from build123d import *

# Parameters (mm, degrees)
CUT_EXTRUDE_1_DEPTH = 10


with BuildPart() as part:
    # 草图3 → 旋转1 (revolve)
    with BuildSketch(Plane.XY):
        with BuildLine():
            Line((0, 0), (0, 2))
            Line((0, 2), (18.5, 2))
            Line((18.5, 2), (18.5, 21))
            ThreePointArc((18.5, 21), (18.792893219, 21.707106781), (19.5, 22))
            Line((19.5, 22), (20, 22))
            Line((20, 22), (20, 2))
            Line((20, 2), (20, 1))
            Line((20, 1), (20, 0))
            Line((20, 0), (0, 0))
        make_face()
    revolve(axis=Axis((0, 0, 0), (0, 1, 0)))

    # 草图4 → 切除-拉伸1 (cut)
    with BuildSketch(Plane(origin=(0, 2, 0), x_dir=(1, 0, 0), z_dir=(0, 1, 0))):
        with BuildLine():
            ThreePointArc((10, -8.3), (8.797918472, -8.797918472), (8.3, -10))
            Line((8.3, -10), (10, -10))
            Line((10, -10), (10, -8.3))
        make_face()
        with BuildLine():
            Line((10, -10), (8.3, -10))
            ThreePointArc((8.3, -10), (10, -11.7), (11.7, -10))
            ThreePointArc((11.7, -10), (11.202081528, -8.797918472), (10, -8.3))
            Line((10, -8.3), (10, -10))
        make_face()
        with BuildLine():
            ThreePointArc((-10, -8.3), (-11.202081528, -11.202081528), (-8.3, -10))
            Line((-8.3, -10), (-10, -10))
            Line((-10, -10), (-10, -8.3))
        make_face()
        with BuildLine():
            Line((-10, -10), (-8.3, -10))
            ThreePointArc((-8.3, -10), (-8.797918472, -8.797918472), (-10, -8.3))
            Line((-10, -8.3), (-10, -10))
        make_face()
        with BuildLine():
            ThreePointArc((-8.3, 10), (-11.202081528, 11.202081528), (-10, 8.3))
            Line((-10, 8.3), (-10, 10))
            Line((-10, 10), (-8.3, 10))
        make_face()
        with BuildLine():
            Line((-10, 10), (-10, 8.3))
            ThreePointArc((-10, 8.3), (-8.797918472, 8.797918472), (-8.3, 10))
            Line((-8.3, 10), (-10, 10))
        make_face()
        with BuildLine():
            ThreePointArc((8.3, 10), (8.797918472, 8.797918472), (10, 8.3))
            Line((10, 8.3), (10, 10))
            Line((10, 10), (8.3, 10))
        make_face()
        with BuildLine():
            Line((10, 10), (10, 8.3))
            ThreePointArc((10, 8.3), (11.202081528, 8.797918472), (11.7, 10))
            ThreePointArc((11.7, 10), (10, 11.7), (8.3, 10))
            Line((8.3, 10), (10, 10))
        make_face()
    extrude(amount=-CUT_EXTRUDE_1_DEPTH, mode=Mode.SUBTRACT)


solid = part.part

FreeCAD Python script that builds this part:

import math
import FreeCAD as App
import Part
import Sketcher
Q = App.Units.Quantity

doc = App.newDocument("Part")
body = doc.addObject("PartDesign::Body", "Body")

sketch1 = body.newObject("Sketcher::SketchObject", "Sketch")
sketch1.AttachmentSupport = (doc.getObject("XY_Plane"), [""])
sketch1.MapMode = "FlatFace"
sketch1.addGeometry(Part.LineSegment(App.Vector(0, 2, 0), App.Vector(0, 0, 0)), False)
sketch1.addGeometry(Part.LineSegment(App.Vector(0, 0, 0), App.Vector(20, 0, 0)), False)
sketch1.addGeometry(Part.LineSegment(App.Vector(20, 0, 0), App.Vector(20, 22, 0)), False)
sketch1.addGeometry(Part.LineSegment(App.Vector(20, 22, 0), App.Vector(19.5, 22, 0)), False)
sketch1.addGeometry(Part.ArcOfCircle(Part.Circle(App.Vector(19.5, 21, 0), App.Vector(0, 0, 1), 1), math.radians(90), math.radians(180)), False)
sketch1.addGeometry(Part.LineSegment(App.Vector(18.5, 21, 0), App.Vector(18.5, 2, 0)), False)
sketch1.addGeometry(Part.LineSegment(App.Vector(18.5, 2, 0), App.Vector(0, 2, 0)), False)
sketch1.addConstraint(Sketcher.Constraint("Coincident", 0, 2, 1, 1))
sketch1.addConstraint(Sketcher.Constraint("Coincident", 1, 2, 2, 1))
sketch1.addConstraint(Sketcher.Constraint("Coincident", 2, 2, 3, 1))
sketch1.addConstraint(Sketcher.Constraint("Tangent", 3, 2, 4, 1))
sketch1.addConstraint(Sketcher.Constraint("Tangent", 4, 2, 5, 1))
sketch1.addConstraint(Sketcher.Constraint("Coincident", 5, 2, 6, 1))
sketch1.addConstraint(Sketcher.Constraint("Coincident", 6, 2, 0, 1))
sketch1.addConstraint(Sketcher.Constraint("Vertical", 0))
sketch1.addConstraint(Sketcher.Constraint("Horizontal", 1))
sketch1.addConstraint(Sketcher.Constraint("Vertical", 2))
sketch1.addConstraint(Sketcher.Constraint("Horizontal", 3))
sketch1.addConstraint(Sketcher.Constraint("Vertical", 5))
sketch1.addConstraint(Sketcher.Constraint("Horizontal", 6))
sketch1.addConstraint(Sketcher.Constraint("Coincident", 0, 2, -1, 1))
sketch1.addConstraint(Sketcher.Constraint("Radius", 4, Q("1 mm")))
sketch1.addConstraint(Sketcher.Constraint("DistanceX", 1, 1, 1, 2, Q("20 mm")))
sketch1.addConstraint(Sketcher.Constraint("DistanceY", 0, 2, 0, 1, Q("2 mm")))
sketch1.addConstraint(Sketcher.Constraint("DistanceY", 2, 1, 2, 2, Q("22 mm")))
sketch1.addConstraint(Sketcher.Constraint("DistanceX", 3, 2, 3, 1, Q("0.5 mm")))
revolution = body.newObject("PartDesign::Revolution", "Revolution")
revolution.Profile = sketch1
revolution.ReferenceAxis = (sketch1, ["V_Axis"])
revolution.Angle = 360

sketch2 = body.newObject("Sketcher::SketchObject", "Sketch001")
sketch2.AttachmentSupport = (doc.getObject("XZ_Plane"), [""])
sketch2.MapMode = "FlatFace"
sketch2.AttachmentOffset = App.Placement(App.Vector(0, 0, -2), App.Rotation())
sketch2.addGeometry(Part.ArcOfCircle(Part.Circle(App.Vector(10, 10, 0), App.Vector(0, 0, 1), 1.7), math.radians(180), math.radians(270)), False)
sketch2.addGeometry(Part.ArcOfCircle(Part.Circle(App.Vector(10, 10, 0), App.Vector(0, 0, 1), 1.7), math.radians(0), math.radians(180)), False)
sketch2.addGeometry(Part.ArcOfCircle(Part.Circle(App.Vector(10, 10, 0), App.Vector(0, 0, 1), 1.7), math.radians(-90), math.radians(0)), False)
sketch2.addGeometry(Part.ArcOfCircle(Part.Circle(App.Vector(-10, 10, 0), App.Vector(0, 0, 1), 1.7), math.radians(0), math.radians(270)), False)
sketch2.addGeometry(Part.ArcOfCircle(Part.Circle(App.Vector(-10, 10, 0), App.Vector(0, 0, 1), 1.7), math.radians(-90), math.radians(0)), False)
sketch2.addGeometry(Part.ArcOfCircle(Part.Circle(App.Vector(-10, -10, 0), App.Vector(0, 0, 1), 1.7), math.radians(90), math.radians(360)), False)
sketch2.addGeometry(Part.ArcOfCircle(Part.Circle(App.Vector(-10, -10, 0), App.Vector(0, 0, 1), 1.7), math.radians(0), math.radians(90)), False)
sketch2.addGeometry(Part.ArcOfCircle(Part.Circle(App.Vector(10, -10, 0), App.Vector(0, 0, 1), 1.7), math.radians(90), math.radians(180)), False)
sketch2.addGeometry(Part.ArcOfCircle(Part.Circle(App.Vector(10, -10, 0), App.Vector(0, 0, 1), 1.7), math.radians(0), math.radians(90)), False)
sketch2.addGeometry(Part.ArcOfCircle(Part.Circle(App.Vector(10, -10, 0), App.Vector(0, 0, 1), 1.7), math.radians(180), math.radians(360)), False)
sketch2.addConstraint(Sketcher.Constraint("Tangent", 0, 1, 1, 2))
sketch2.addConstraint(Sketcher.Constraint("Tangent", 1, 1, 2, 2))
sketch2.addConstraint(Sketcher.Constraint("Tangent", 2, 1, 0, 2))
sketch2.addConstraint(Sketcher.Constraint("Tangent", 3, 1, 4, 2))
sketch2.addConstraint(Sketcher.Constraint("Coincident", 4, 1, 3, 2))
sketch2.addConstraint(Sketcher.Constraint("Tangent", 5, 1, 6, 2))
sketch2.addConstraint(Sketcher.Constraint("Coincident", 6, 1, 5, 2))
sketch2.addConstraint(Sketcher.Constraint("Tangent", 7, 1, 8, 2))
sketch2.addConstraint(Sketcher.Constraint("Tangent", 8, 1, 9, 2))
sketch2.addConstraint(Sketcher.Constraint("Tangent", 9, 1, 7, 2))
sketch2.addConstraint(Sketcher.Constraint("Equal", 2, 3))
sketch2.addConstraint(Sketcher.Constraint("Equal", 4, 5))
sketch2.addConstraint(Sketcher.Constraint("Equal", 6, 7))
sketch2.addConstraint(Sketcher.Constraint("Symmetric", 0, 3, 5, 3, -1, 1))
sketch2.addConstraint(Sketcher.Constraint("Symmetric", 3, 3, 7, 3, -1, 1))
sketch2.addConstraint(Sketcher.Constraint("Symmetric", 0, 3, 3, 3, -2))
sketch2.addConstraint(Sketcher.Constraint("Horizontal", 4, 3, 0, 1))
sketch2.addConstraint(Sketcher.Constraint("Horizontal", 0, 1, 1, 1))
sketch2.addConstraint(Sketcher.Constraint("Horizontal", 1, 1, 3, 1))
sketch2.addConstraint(Sketcher.Constraint("Horizontal", 9, 3, 6, 1))
sketch2.addConstraint(Sketcher.Constraint("Horizontal", 6, 1, 8, 1))
sketch2.addConstraint(Sketcher.Constraint("Horizontal", 8, 1, 9, 1))
sketch2.addConstraint(Sketcher.Constraint("Vertical", 9, 3, 2, 1))
sketch2.addConstraint(Sketcher.Constraint("Vertical", 6, 3, 4, 1))
sketch2.addConstraint(Sketcher.Constraint("Vertical", 4, 1, 5, 1))
sketch2.addConstraint(Sketcher.Constraint("Vertical", 2, 1, 7, 1))
sketch2.addConstraint(Sketcher.Constraint("Radius", 0, Q("1.7 mm")))
sketch2.addConstraint(Sketcher.Constraint("DistanceX", -1, 1, 0, 3, Q("10 mm")))
sketch2.addConstraint(Sketcher.Constraint("DistanceY", -1, 1, 0, 3, Q("10 mm")))
pocket1 = body.newObject("PartDesign::Pocket", "Pocket")
pocket1.Profile = sketch2
pocket1.Length = 10
pocket1.Reversed = True

doc.recompute()
